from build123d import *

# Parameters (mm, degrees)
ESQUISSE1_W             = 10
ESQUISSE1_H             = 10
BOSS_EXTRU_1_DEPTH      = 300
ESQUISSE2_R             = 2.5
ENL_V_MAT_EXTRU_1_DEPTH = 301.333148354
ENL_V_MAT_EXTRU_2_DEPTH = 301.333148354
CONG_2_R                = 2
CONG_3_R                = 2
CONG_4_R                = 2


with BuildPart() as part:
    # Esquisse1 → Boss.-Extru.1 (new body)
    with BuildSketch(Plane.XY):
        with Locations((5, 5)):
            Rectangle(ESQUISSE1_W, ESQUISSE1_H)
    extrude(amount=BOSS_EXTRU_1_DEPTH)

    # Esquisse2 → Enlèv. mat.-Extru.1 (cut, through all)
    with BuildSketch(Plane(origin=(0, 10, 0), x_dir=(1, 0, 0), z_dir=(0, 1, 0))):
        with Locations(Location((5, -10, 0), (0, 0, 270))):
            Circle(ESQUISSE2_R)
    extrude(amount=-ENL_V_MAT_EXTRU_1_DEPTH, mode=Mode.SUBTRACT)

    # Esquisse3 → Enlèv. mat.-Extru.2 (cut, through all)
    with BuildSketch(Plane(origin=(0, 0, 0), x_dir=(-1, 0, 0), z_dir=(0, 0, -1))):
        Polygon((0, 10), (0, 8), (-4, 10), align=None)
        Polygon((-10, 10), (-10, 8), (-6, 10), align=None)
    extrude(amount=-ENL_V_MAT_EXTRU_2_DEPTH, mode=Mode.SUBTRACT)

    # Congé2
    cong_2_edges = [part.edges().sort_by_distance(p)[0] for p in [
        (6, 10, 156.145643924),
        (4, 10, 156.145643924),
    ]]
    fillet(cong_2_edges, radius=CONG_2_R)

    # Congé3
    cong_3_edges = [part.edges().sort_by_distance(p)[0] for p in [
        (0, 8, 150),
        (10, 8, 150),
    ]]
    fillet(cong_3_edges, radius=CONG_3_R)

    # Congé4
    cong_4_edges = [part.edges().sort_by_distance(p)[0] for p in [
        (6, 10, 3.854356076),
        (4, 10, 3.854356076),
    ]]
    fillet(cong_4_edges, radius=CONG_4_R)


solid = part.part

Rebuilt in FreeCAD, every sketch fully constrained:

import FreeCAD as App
import Part
import Sketcher
from FreeCAD import Vector
Q = App.Units.Quantity


def edges_at(feature, points):
    """Names of the edges that pass closest to the given points."""
    edges = feature.Shape.Edges
    near = lambda p: min(range(len(edges)), key=lambda i: edges[i].distToShape(Part.Vertex(*p))[0])
    return sorted({f"Edge{near(p) + 1}" for p in points})


def add_polygon(sketch, points):
    """Adds a closed chain of lines whose ends are joined by coincident constraints."""
    first, n = sketch.GeometryCount, len(points)
    for a, b in zip(points, points[1:] + points[:1]):
        sketch.addGeometry(Part.LineSegment(App.Vector(*a, 0), App.Vector(*b, 0)), False)
    for i in range(n):
        sketch.addConstraint(Sketcher.Constraint("Coincident", first + i, 2, first + (i + 1) % n, 1))

doc = App.newDocument("Part")
params = doc.addObject("Spreadsheet::Sheet", "Params")
for row, (alias, value) in enumerate([
    ("sketch1_width", "10 mm"),
    ("pad1_length", "300 mm"),
    ("sketch2_diameter", "5 mm"),
    ("sketch3_width", "4 mm"),
    ("sketch3_height", "2 mm"),
    ("fillet_radius", "2 mm"),
    ("fillet2_radius", "2 mm"),
    ("fillet3_radius", "2 mm"),
], start=1):
    params.set(f"A{row}", alias)
    params.set(f"B{row}", "=" + value)
    params.setAlias(f"B{row}", alias)

body = doc.addObject("PartDesign::Body", "Body")

# Sketch on XY plane
sketch1 = body.newObject("Sketcher::SketchObject", "Sketch")
sketch1.AttachmentSupport = (doc.getObject("XY_Plane"), [""])
sketch1.MapMode = "FlatFace"
add_polygon(sketch1, [(0, 10), (0, 0), (10, 0), (10, 10)])  # lines 0-3
sketch1.addConstraint([
    Sketcher.Constraint("Vertical", 0),
    Sketcher.Constraint("Horizontal", 1),
    Sketcher.Constraint("Vertical", 2),
    Sketcher.Constraint("Horizontal", 3),
    Sketcher.Constraint("Coincident", 0, 2, -1, 1),
    Sketcher.Constraint("Equal", 3, 0),
    Sketcher.Constraint("DistanceX", 1, 1, 1, 2, Q("10 mm")),
])
sketch1.setExpression("Constraints[10]", "Params.sketch1_width")
pad1 = body.newObject("PartDesign::Pad", "Pad")
pad1.Profile = sketch1
pad1.setExpression("Length", "Params.pad1_length")

# Sketch on XZ plane
sketch2 = body.newObject("Sketcher::SketchObject", "Sketch001")
sketch2.AttachmentSupport = (doc.getObject("XZ_Plane"), [""])
sketch2.MapMode = "FlatFace"
sketch2.AttachmentOffset = App.Placement(Vector(0, 0, -10), App.Rotation())
sketch2.addGeometry(Part.Circle(Vector(5, 10, 0), Vector(0, 0, 1), 2.5), False)
sketch2.addConstraint([
    Sketcher.Constraint("Diameter", 0, Q("5 mm")),
    Sketcher.Constraint("DistanceX", -1, 1, 0, 3, Q("5 mm")),
    Sketcher.Constraint("DistanceY", -1, 1, 0, 3, Q("10 mm")),
])
sketch2.setExpression("Constraints[0]", "Params.sketch2_diameter")
pocket1 = body.newObject("PartDesign::Pocket", "Pocket")
pocket1.Profile = sketch2
pocket1.Type = "ThroughAll"
pocket1.Reversed = True

# Sketch on XY plane
sketch3 = body.newObject("Sketcher::SketchObject", "Sketch002")
sketch3.AttachmentSupport = (doc.getObject("XY_Plane"), [""])
sketch3.MapMode = "FlatFace"
add_polygon(sketch3, [(0, 8), (0, 10), (4, 10)])  # lines 0-2
add_polygon(sketch3, [(10, 10), (10, 8), (6, 10)])  # lines 3-5
sketch3.addConstraint([
    Sketcher.Constraint("Vertical", 0),
    Sketcher.Constraint("Horizontal", 1),
    Sketcher.Constraint("Vertical", 3),
    Sketcher.Constraint("Horizontal", 5),
    Sketcher.Constraint("PointOnObject", 0, 2, -2),
    Sketcher.Constraint("Horizontal", 2, 2, 3, 2),
    Sketcher.Constraint("Horizontal", 1, 2, 4, 2),
    Sketcher.Constraint("Equal", 1, 5),
    Sketcher.Constraint("DistanceX", 1, 1, 1, 2, Q("4 mm")),
    Sketcher.Constraint("DistanceY", 0, 1, 0, 2, Q("2 mm")),
    Sketcher.Constraint("DistanceY", -1, 1, 0, 2, Q("10 mm")),
    Sketcher.Constraint("DistanceX", -1, 1, 3, 2, Q("10 mm")),
])
sketch3.setExpression("Constraints[14]", "Params.sketch3_width")
sketch3.setExpression("Constraints[15]", "Params.sketch3_height")
pocket2 = body.newObject("PartDesign::Pocket", "Pocket001")
pocket2.Profile = sketch3
pocket2.Type = "ThroughAll"
pocket2.Reversed = True
doc.recompute()

fillet = body.newObject("PartDesign::Fillet", "Fillet")
fillet.Base = (pocket2, edges_at(pocket2, [(6, 10, 156.146), (4, 10, 156.146)]))
fillet.setExpression("Radius", "Params.fillet_radius")
doc.recompute()

fillet2 = body.newObject("PartDesign::Fillet", "Fillet001")
fillet2.Base = (fillet, edges_at(fillet, [(0, 8, 150), (10, 8, 150)]))
fillet2.setExpression("Radius", "Params.fillet2_radius")
doc.recompute()

fillet3 = body.newObject("PartDesign::Fillet", "Fillet002")
fillet3.Base = (fillet2, edges_at(fillet2, [(6, 10, 3.854), (4, 10, 3.854)]))
fillet3.setExpression("Radius", "Params.fillet3_radius")

doc.recompute()
